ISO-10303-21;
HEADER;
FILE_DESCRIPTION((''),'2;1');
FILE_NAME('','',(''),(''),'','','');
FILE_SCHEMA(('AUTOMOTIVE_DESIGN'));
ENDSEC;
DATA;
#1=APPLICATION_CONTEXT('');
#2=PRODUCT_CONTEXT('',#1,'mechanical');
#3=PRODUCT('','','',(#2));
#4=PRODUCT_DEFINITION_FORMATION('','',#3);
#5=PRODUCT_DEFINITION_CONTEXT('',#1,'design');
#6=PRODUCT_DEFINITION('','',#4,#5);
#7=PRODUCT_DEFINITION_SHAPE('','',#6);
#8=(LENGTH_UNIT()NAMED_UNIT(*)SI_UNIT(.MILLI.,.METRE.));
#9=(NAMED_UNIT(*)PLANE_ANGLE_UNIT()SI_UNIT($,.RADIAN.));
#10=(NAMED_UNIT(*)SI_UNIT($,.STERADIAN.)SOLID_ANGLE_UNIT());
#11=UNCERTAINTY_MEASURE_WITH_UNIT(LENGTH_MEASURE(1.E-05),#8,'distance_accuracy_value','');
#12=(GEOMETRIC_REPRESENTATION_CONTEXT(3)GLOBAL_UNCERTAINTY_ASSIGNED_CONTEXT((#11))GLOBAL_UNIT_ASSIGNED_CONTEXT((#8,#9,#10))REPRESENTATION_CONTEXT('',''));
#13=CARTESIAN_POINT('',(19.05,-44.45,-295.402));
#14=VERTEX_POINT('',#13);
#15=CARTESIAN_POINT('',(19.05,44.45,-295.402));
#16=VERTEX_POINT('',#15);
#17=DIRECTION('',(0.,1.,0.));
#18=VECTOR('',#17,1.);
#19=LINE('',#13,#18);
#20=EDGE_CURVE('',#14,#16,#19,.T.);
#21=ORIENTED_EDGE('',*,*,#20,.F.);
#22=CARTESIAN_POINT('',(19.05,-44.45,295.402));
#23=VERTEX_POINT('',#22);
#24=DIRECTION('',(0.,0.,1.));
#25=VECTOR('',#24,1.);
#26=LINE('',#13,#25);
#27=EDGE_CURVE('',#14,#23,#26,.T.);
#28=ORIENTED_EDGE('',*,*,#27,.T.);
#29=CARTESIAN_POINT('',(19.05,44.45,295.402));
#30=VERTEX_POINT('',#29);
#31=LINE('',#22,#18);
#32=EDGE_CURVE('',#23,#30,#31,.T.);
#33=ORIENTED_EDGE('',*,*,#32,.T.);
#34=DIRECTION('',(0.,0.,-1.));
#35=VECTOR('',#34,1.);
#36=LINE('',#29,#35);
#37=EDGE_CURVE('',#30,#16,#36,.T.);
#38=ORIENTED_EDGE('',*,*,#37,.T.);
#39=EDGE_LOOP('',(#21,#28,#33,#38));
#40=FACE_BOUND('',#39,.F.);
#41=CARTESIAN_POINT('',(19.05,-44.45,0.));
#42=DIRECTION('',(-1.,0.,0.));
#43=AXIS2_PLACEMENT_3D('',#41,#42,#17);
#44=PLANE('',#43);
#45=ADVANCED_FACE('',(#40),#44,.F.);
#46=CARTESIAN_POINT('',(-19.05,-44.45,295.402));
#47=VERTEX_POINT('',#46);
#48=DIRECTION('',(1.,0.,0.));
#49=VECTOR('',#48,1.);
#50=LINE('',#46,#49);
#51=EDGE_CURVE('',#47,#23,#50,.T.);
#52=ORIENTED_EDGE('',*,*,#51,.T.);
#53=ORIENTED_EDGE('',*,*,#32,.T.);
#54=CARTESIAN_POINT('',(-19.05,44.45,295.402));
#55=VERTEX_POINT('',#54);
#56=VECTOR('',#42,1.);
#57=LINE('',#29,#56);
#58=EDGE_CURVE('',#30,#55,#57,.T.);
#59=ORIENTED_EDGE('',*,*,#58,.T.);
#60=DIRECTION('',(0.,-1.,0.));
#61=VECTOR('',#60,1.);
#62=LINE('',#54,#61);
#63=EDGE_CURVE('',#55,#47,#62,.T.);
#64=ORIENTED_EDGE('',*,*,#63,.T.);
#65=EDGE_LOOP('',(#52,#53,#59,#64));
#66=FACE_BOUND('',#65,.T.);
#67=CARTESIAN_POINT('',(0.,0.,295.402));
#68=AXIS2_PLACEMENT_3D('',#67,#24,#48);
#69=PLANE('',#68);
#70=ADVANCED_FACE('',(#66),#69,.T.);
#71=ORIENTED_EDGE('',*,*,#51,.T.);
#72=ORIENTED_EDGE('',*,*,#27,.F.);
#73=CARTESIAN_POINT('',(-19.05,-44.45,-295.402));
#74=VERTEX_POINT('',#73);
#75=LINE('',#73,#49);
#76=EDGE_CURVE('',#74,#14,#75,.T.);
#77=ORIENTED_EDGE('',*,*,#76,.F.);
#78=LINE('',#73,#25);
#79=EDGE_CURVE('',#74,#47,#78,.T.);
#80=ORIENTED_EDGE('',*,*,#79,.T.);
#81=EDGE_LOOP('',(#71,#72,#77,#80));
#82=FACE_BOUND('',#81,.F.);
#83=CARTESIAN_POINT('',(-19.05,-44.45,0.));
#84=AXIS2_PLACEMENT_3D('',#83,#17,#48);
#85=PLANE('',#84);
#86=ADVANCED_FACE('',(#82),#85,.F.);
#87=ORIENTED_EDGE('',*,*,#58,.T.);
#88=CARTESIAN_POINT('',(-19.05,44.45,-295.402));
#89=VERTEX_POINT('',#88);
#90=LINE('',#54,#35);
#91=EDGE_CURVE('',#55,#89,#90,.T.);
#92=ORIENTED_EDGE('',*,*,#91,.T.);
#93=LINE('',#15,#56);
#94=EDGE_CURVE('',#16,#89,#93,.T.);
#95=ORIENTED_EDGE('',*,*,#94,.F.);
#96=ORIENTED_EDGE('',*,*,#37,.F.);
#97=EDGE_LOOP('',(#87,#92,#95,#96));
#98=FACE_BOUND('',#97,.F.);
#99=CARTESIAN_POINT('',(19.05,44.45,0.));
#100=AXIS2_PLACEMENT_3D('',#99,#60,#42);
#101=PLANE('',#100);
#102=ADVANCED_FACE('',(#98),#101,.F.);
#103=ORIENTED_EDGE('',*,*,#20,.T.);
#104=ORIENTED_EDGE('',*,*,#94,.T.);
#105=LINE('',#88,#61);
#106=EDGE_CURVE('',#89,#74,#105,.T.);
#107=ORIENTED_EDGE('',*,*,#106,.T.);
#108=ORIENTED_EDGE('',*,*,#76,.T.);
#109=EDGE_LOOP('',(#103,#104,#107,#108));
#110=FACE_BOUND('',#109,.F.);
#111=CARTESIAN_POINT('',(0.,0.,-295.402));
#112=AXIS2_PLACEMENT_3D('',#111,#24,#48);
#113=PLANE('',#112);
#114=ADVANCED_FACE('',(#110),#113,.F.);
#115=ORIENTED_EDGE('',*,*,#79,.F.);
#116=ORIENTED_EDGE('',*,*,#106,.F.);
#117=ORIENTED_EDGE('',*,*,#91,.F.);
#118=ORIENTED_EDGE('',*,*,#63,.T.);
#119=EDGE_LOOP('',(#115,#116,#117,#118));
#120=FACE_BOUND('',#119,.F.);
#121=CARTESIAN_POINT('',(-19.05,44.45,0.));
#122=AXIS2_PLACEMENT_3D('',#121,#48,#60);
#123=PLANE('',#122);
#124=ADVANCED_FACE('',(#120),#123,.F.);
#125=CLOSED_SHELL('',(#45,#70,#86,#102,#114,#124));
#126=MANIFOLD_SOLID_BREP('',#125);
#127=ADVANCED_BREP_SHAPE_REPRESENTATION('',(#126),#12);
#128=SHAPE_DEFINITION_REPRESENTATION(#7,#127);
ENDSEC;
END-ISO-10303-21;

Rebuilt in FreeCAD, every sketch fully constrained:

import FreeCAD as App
import Part
import Sketcher
Q = App.Units.Quantity


def add_polygon(sketch, points):
    """Adds a closed chain of lines whose ends are joined by coincident constraints."""
    first, n = sketch.GeometryCount, len(points)
    for a, b in zip(points, points[1:] + points[:1]):
        sketch.addGeometry(Part.LineSegment(App.Vector(*a, 0), App.Vector(*b, 0)), False)
    for i in range(n):
        sketch.addConstraint(Sketcher.Constraint("Coincident", first + i, 2, first + (i + 1) % n, 1))

doc = App.newDocument("Part")
body = doc.addObject("PartDesign::Body", "Body")

# Sketch on XY plane
sketch1 = body.newObject("Sketcher::SketchObject", "Sketch")
sketch1.AttachmentSupport = (doc.getObject("XY_Plane"), [""])
sketch1.MapMode = "FlatFace"
add_polygon(sketch1, [(-19.05, 44.45), (-19.05, -44.45), (19.05, -44.45), (19.05, 44.45)])  # lines 0-3
sketch1.addConstraint([
    Sketcher.Constraint("Vertical", 0),
    Sketcher.Constraint("Horizontal", 1),
    Sketcher.Constraint("Vertical", 2),
    Sketcher.Constraint("Horizontal", 3),
    Sketcher.Constraint("Symmetric", 0, 2, 2, 2, -1, 1),
    Sketcher.Constraint("DistanceX", 1, 1, 1, 2, Q("1.5 in")),
    Sketcher.Constraint("DistanceY", 0, 2, 0, 1, Q("3.5 in")),
])
pad1 = body.newObject("PartDesign::Pad", "Pad")
pad1.Profile = sketch1
pad1.Length = Q("23.26 in")
pad1.Midplane = True

doc.recompute()
